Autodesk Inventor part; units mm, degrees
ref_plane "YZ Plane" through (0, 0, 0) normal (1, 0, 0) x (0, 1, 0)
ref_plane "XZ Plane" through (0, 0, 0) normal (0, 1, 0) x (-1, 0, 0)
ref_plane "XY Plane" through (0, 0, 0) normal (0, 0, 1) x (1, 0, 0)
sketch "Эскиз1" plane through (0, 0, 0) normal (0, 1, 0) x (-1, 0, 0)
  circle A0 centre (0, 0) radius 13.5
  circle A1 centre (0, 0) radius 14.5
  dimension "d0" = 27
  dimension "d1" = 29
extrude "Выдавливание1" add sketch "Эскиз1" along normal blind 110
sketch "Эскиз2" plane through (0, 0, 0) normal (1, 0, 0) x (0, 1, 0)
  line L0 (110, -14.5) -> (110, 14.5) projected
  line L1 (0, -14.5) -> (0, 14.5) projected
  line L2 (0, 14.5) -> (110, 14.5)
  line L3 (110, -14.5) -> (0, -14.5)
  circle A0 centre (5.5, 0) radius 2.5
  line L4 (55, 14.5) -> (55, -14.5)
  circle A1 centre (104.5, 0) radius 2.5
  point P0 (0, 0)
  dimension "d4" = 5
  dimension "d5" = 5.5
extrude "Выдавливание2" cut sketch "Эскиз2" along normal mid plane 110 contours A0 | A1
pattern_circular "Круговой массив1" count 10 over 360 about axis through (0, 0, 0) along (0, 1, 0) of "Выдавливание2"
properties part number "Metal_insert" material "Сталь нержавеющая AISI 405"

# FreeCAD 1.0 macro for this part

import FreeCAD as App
import Part
import Sketcher

doc = App.newDocument("Part")
body = doc.addObject("PartDesign::Body", "Body")

sketch1 = doc.addObject("Sketcher::SketchObject", "Sketch")
body.addObject(sketch1)
sketch1.AttachmentSupport = (doc.XZ_Plane, [""])
sketch1.MapMode = "FlatFace"
sketch1.addGeometry([
    Part.Circle(App.Vector(0, 0, 0), App.Vector(0, 0, 1), 14),
    Part.Circle(App.Vector(0, 0, 0), App.Vector(0, 0, 1), 14),
], False)
sketch1.addConstraint([
    Sketcher.Constraint("Coincident", 0, 3, -1, 1),
    Sketcher.Constraint("Coincident", 1, 3, -1, 1),
    Sketcher.Constraint("Diameter", 0, 29.0),
    Sketcher.Constraint("Diameter", 1, 27.0),
])
pad1 = doc.addObject("PartDesign::Pad", "Pad")
body.addObject(pad1)
pad1.Profile = sketch1
pad1.Length = 110
pad1.Reversed = True

sketch2 = doc.addObject("Sketcher::SketchObject", "Sketch001")
body.addObject(sketch2)
sketch2.AttachmentSupport = (doc.YZ_Plane, [""])
sketch2.MapMode = "FlatFace"
sketch2.addGeometry([
    Part.Circle(App.Vector(5.5, 0, 0), App.Vector(0, 0, 1), 2.5),
    Part.Circle(App.Vector(104.5, 0, 0), App.Vector(0, 0, 1), 2.5),
], False)
sketch2.addConstraint([
    Sketcher.Constraint("Equal", 0, 1),
    Sketcher.Constraint("PointOnObject", 0, 3, -1),
    Sketcher.Constraint("PointOnObject", 1, 3, -1),
    Sketcher.Constraint("Diameter", 0, 5.0),
    Sketcher.Constraint("DistanceX", -1, 1, 0, 3, 5.5),
    Sketcher.Constraint("DistanceX", 0, 3, 1, 3, 99.0),
])
pocket1 = doc.addObject("PartDesign::Pocket", "Pocket")
body.addObject(pocket1)
pocket1.Profile = sketch2
pocket1.Length = 110
pocket1.Midplane = True
doc.recompute()

polarpattern = doc.addObject("PartDesign::PolarPattern", "PolarPattern")
body.addObject(polarpattern)
polarpattern.Originals = [pocket1]
polarpattern.Axis = (doc.Y_Axis, [""])
polarpattern.Angle = 360
polarpattern.Occurrences = 10
body.Tip = polarpattern

doc.recompute()
